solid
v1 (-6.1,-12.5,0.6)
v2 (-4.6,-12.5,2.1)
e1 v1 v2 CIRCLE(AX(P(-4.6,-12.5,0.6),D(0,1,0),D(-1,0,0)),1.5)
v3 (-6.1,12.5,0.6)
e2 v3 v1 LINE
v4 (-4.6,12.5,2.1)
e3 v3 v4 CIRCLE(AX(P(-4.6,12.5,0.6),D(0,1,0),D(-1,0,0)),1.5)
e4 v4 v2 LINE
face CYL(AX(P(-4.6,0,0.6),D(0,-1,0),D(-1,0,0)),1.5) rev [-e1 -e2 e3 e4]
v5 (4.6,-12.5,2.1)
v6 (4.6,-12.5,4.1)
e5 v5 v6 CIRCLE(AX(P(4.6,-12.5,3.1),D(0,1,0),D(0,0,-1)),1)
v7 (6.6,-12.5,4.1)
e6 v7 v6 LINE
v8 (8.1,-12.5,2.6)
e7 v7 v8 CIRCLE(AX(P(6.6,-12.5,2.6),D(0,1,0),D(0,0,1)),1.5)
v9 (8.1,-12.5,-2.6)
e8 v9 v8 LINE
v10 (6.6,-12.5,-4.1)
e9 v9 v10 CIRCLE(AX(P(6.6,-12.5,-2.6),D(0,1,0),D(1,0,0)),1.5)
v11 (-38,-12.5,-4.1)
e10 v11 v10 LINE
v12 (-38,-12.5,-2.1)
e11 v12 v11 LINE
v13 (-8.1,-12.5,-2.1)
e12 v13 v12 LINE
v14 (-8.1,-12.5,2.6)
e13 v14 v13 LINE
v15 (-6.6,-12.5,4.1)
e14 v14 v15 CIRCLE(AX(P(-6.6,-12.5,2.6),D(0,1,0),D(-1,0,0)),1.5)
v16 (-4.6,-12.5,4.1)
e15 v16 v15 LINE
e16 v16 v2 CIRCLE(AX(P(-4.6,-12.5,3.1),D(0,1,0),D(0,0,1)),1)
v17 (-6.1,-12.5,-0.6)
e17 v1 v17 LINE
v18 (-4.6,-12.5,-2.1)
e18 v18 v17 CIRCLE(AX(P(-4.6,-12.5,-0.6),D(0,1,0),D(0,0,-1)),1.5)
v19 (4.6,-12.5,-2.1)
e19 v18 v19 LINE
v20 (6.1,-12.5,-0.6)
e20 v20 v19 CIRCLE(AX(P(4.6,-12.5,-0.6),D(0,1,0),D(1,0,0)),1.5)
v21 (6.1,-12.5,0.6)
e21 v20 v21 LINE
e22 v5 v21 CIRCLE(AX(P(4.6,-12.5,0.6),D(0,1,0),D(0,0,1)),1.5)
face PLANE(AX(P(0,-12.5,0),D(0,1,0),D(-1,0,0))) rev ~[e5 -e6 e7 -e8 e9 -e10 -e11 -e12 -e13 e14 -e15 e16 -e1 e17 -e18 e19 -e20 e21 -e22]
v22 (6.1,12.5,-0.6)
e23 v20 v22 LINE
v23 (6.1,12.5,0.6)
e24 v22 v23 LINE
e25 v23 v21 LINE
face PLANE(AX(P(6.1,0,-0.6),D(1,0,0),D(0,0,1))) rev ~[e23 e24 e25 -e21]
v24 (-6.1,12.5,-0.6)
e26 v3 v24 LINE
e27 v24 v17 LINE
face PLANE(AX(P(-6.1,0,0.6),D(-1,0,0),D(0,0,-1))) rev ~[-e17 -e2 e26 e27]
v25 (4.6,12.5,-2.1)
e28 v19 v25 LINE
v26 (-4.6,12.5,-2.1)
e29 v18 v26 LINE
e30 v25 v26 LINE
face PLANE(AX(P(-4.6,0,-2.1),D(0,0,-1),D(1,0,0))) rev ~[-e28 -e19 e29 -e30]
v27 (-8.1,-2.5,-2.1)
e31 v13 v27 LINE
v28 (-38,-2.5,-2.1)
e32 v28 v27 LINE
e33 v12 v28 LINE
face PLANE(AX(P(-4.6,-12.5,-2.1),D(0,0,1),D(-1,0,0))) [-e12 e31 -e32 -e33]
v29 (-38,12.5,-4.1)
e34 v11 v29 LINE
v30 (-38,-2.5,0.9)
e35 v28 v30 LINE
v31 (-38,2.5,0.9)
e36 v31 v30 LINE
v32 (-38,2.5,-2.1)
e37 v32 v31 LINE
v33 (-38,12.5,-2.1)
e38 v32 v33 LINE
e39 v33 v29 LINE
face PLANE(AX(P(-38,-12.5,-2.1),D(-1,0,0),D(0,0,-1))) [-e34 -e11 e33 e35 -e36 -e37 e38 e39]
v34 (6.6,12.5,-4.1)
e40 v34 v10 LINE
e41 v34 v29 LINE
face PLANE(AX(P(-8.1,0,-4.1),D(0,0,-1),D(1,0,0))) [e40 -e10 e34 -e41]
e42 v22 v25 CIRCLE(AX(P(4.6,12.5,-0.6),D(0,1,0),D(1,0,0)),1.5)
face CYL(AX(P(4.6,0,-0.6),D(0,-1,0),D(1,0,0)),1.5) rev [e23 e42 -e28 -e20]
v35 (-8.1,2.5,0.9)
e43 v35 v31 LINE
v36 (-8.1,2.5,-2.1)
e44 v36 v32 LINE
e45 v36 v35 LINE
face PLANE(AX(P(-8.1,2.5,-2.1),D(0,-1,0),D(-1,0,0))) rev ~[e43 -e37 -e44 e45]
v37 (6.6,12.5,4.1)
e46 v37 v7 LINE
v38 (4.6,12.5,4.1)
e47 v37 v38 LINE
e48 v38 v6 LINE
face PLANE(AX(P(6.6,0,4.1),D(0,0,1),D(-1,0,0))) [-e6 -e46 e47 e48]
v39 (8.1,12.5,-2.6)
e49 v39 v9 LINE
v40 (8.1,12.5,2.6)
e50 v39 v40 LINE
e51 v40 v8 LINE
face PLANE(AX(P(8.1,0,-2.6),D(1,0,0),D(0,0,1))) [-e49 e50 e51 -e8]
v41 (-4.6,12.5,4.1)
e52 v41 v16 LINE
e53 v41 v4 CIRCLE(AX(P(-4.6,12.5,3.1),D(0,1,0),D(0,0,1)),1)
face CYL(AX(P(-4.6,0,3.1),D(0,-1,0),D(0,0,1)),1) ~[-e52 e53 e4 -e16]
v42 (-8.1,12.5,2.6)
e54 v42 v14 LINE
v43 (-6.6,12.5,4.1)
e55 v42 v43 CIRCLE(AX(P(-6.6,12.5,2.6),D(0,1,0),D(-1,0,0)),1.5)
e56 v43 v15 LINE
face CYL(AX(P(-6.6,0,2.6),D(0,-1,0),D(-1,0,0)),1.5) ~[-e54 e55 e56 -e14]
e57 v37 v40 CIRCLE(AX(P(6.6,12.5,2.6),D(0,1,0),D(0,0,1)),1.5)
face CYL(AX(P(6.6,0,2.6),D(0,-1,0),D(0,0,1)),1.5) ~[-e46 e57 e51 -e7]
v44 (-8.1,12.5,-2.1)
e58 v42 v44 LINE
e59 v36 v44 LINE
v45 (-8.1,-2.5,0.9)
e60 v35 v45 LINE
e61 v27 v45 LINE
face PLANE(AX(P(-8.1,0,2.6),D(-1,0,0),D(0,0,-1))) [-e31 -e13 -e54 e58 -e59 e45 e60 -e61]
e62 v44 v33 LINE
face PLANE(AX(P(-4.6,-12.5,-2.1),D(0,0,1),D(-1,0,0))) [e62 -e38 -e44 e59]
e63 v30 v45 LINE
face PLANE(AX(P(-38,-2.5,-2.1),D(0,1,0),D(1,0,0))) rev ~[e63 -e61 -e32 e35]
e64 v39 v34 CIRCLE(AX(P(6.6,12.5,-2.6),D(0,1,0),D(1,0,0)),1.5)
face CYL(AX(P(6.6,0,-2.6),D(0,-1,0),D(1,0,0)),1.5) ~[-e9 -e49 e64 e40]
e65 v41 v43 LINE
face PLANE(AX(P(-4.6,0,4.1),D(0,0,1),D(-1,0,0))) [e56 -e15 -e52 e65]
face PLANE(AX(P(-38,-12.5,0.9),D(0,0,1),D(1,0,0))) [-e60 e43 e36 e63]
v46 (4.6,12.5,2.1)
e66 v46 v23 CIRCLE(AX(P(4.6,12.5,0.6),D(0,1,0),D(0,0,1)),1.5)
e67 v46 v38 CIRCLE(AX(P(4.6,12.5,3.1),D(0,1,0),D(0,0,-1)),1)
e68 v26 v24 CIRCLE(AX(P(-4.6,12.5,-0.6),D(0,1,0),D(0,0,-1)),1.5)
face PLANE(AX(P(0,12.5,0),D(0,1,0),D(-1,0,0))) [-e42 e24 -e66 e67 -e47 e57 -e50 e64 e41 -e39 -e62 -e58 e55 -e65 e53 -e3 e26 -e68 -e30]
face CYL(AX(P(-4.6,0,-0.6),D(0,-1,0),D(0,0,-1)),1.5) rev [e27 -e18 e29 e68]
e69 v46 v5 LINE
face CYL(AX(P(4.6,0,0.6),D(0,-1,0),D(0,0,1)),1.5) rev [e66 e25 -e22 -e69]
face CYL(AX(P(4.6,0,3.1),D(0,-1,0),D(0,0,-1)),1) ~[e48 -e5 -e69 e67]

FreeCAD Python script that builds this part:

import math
import FreeCAD as App
import Part
import Sketcher
Q = App.Units.Quantity

doc = App.newDocument("Part")
body = doc.addObject("PartDesign::Body", "Body")

# Sketch on XZ plane
sketch1 = body.newObject("Sketcher::SketchObject", "Sketch")
sketch1.AttachmentSupport = (doc.getObject("XZ_Plane"), [""])
sketch1.MapMode = "FlatFace"
sketch1.addGeometry([
    Part.ArcOfCircle(Part.Circle(App.Vector(-4.6, -0.6, 0), App.Vector(0, 0, 1), 1.5), math.radians(180), math.radians(270)),  # 0
    Part.LineSegment(App.Vector(-4.6, -2.1, 0), App.Vector(4.6, -2.1, 0)),  # 1
    Part.ArcOfCircle(Part.Circle(App.Vector(4.6, -0.6, 0), App.Vector(0, 0, 1), 1.5), math.radians(-90), math.radians(0)),  # 2
    Part.LineSegment(App.Vector(6.1, -0.6, 0), App.Vector(6.1, 0.6, 0)),  # 3
    Part.ArcOfCircle(Part.Circle(App.Vector(4.6, 0.6, 0), App.Vector(0, 0, 1), 1.5), math.radians(0), math.radians(90)),  # 4
    Part.ArcOfCircle(Part.Circle(App.Vector(4.6, 3.1, 0), App.Vector(0, 0, 1), 1), math.radians(90), math.radians(270)),  # 5
    Part.LineSegment(App.Vector(4.6, 4.1, 0), App.Vector(6.6, 4.1, 0)),  # 6
    Part.ArcOfCircle(Part.Circle(App.Vector(6.6, 2.6, 0), App.Vector(0, 0, 1), 1.5), math.radians(0), math.radians(90)),  # 7
    Part.LineSegment(App.Vector(8.1, 2.6, 0), App.Vector(8.1, -2.6, 0)),  # 8
    Part.ArcOfCircle(Part.Circle(App.Vector(6.6, -2.6, 0), App.Vector(0, 0, 1), 1.5), math.radians(-90), math.radians(0)),  # 9
    Part.LineSegment(App.Vector(6.6, -4.1, 0), App.Vector(-8.1, -4.1, 0)),  # 10
    Part.LineSegment(App.Vector(-8.1, -4.1, 0), App.Vector(-8.1, 2.6, 0)),  # 11
    Part.ArcOfCircle(Part.Circle(App.Vector(-6.6, 2.6, 0), App.Vector(0, 0, 1), 1.5), math.radians(90), math.radians(180)),  # 12
    Part.LineSegment(App.Vector(-6.6, 4.1, 0), App.Vector(-4.6, 4.1, 0)),  # 13
    Part.ArcOfCircle(Part.Circle(App.Vector(-4.6, 3.1, 0), App.Vector(0, 0, 1), 1), math.radians(-90), math.radians(90)),  # 14
    Part.ArcOfCircle(Part.Circle(App.Vector(-4.6, 0.6, 0), App.Vector(0, 0, 1), 1.5), math.radians(90), math.radians(180)),  # 15
    Part.LineSegment(App.Vector(-6.1, 0.6, 0), App.Vector(-6.1, -0.6, 0)),  # 16
], False)
sketch1.addConstraint([
    Sketcher.Constraint("Tangent", 0, 2, 1, 1),
    Sketcher.Constraint("Tangent", 1, 2, 2, 1),
    Sketcher.Constraint("Tangent", 2, 2, 3, 1),
    Sketcher.Constraint("Tangent", 3, 2, 4, 1),
    Sketcher.Constraint("Tangent", 4, 2, 5, 2),
    Sketcher.Constraint("Tangent", 5, 1, 6, 1),
    Sketcher.Constraint("Tangent", 6, 2, 7, 2),
    Sketcher.Constraint("Tangent", 7, 1, 8, 1),
    Sketcher.Constraint("Tangent", 8, 2, 9, 2),
    Sketcher.Constraint("Tangent", 9, 1, 10, 1),
    Sketcher.Constraint("Coincident", 10, 2, 11, 1),
    Sketcher.Constraint("Tangent", 11, 2, 12, 2),
    Sketcher.Constraint("Tangent", 12, 1, 13, 1),
    Sketcher.Constraint("Tangent", 13, 2, 14, 2),
    Sketcher.Constraint("Tangent", 14, 1, 15, 1),
    Sketcher.Constraint("Tangent", 15, 2, 16, 1),
    Sketcher.Constraint("Tangent", 16, 2, 0, 1),
    Sketcher.Constraint("Horizontal", 1),
    Sketcher.Constraint("Vertical", 3),
    Sketcher.Constraint("Horizontal", 6),
    Sketcher.Constraint("Vertical", 8),
    Sketcher.Constraint("Horizontal", 10),
    Sketcher.Constraint("Vertical", 11),
    Sketcher.Constraint("Horizontal", 13),
    Sketcher.Constraint("Vertical", 16),
    Sketcher.Constraint("Equal", 0, 2),
    Sketcher.Constraint("Equal", 2, 4),
    Sketcher.Constraint("Equal", 4, 7),
    Sketcher.Constraint("Equal", 7, 9),
    Sketcher.Constraint("Equal", 9, 12),
    Sketcher.Constraint("Equal", 5, 14),
    Sketcher.Constraint("Equal", 12, 15),
    Sketcher.Constraint("Symmetric", 0, 3, 4, 3, -1, 1),
    Sketcher.Constraint("Symmetric", 9, 3, 12, 3, -1, 1),
    Sketcher.Constraint("Symmetric", 1, 2, 14, 1, -1, 1),
    Sketcher.Constraint("Vertical", 4, 3, 5, 3),
    Sketcher.Constraint("Radius", 5, Q("1 mm")),
    Sketcher.Constraint("Radius", 0, Q("1.5 mm")),
    Sketcher.Constraint("DistanceX", 6, 1, 6, 2, Q("2 mm")),
    Sketcher.Constraint("DistanceX", 1, 1, 1, 2, Q("9.2 mm")),
    Sketcher.Constraint("DistanceY", 3, 1, 3, 2, Q("1.2 mm")),
])
pad1 = body.newObject("PartDesign::Pad", "Pad")
pad1.Profile = sketch1
pad1.Length = 25
pad1.Midplane = True

# Sketch on XZ plane
sketch2 = body.newObject("Sketcher::SketchObject", "Sketch001")
sketch2.AttachmentSupport = (doc.getObject("XZ_Plane"), [""])
sketch2.MapMode = "FlatFace"
sketch2.AttachmentOffset = App.Placement(App.Vector(0, 0, 12.5), App.Rotation())
sketch2.addGeometry([
    Part.LineSegment(App.Vector(0, -4.1, 0), App.Vector(0, -2.1, 0)),
    Part.LineSegment(App.Vector(0, -2.1, 0), App.Vector(-38, -2.1, 0)),
    Part.LineSegment(App.Vector(-38, -2.1, 0), App.Vector(-38, -4.1, 0)),
    Part.LineSegment(App.Vector(-38, -4.1, 0), App.Vector(0, -4.1, 0)),
], False)
sketch2.addConstraint([
    Sketcher.Constraint("Coincident", 0, 2, 1, 1),
    Sketcher.Constraint("Coincident", 1, 2, 2, 1),
    Sketcher.Constraint("Coincident", 2, 2, 3, 1),
    Sketcher.Constraint("Coincident", 3, 2, 0, 1),
    Sketcher.Constraint("Vertical", 0),
    Sketcher.Constraint("Horizontal", 1),
    Sketcher.Constraint("Vertical", 2),
    Sketcher.Constraint("Horizontal", 3),
    Sketcher.Constraint("PointOnObject", 0, 2, -2),
    Sketcher.Constraint("DistanceX", 1, 2, 1, 1, Q("38 mm")),
    Sketcher.Constraint("DistanceY", 0, 1, 0, 2, Q("2 mm")),
    Sketcher.Constraint("DistanceY", 0, 2, -1, 1, Q("2.1 mm")),
])
pad2 = body.newObject("PartDesign::Pad", "Pad001")
pad2.Profile = sketch2
pad2.Length = 25
pad2.Reversed = True

# Sketch on XY plane
sketch3 = body.newObject("Sketcher::SketchObject", "Sketch002")
sketch3.AttachmentSupport = (doc.getObject("XY_Plane"), [""])
sketch3.MapMode = "FlatFace"
sketch3.AttachmentOffset = App.Placement(App.Vector(0, 0, -2.1), App.Rotation())
sketch3.addGeometry([
    Part.LineSegment(App.Vector(-8, -2, 0), App.Vector(-8, 2, 0)),
    Part.LineSegment(App.Vector(-8, 2, 0), App.Vector(-38, 2, 0)),
    Part.LineSegment(App.Vector(-38, 2, 0), App.Vector(-38, -2, 0)),
    Part.LineSegment(App.Vector(-38, -2, 0), App.Vector(-8, -2, 0)),
], False)
sketch3.addConstraint([
    Sketcher.Constraint("Coincident", 0, 2, 1, 1),
    Sketcher.Constraint("Coincident", 1, 2, 2, 1),
    Sketcher.Constraint("Coincident", 2, 2, 3, 1),
    Sketcher.Constraint("Coincident", 3, 2, 0, 1),
    Sketcher.Constraint("Vertical", 0),
    Sketcher.Constraint("Horizontal", 1),
    Sketcher.Constraint("Vertical", 2),
    Sketcher.Constraint("Horizontal", 3),
    Sketcher.Constraint("DistanceY", 0, 1, 0, 2, Q("5 mm")),
    Sketcher.Constraint("DistanceX", 1, 2, 1, 1, Q("29.9 mm")),
    Sketcher.Constraint("DistanceX", 1, 2, -1, 1, Q("38 mm")),
    Sketcher.Constraint("DistanceY", -1, 1, 0, 2, Q("2.5 mm")),
])
pad3 = body.newObject("PartDesign::Pad", "Pad002")
pad3.Profile = sketch3
pad3.Length = 3

doc.recompute()
